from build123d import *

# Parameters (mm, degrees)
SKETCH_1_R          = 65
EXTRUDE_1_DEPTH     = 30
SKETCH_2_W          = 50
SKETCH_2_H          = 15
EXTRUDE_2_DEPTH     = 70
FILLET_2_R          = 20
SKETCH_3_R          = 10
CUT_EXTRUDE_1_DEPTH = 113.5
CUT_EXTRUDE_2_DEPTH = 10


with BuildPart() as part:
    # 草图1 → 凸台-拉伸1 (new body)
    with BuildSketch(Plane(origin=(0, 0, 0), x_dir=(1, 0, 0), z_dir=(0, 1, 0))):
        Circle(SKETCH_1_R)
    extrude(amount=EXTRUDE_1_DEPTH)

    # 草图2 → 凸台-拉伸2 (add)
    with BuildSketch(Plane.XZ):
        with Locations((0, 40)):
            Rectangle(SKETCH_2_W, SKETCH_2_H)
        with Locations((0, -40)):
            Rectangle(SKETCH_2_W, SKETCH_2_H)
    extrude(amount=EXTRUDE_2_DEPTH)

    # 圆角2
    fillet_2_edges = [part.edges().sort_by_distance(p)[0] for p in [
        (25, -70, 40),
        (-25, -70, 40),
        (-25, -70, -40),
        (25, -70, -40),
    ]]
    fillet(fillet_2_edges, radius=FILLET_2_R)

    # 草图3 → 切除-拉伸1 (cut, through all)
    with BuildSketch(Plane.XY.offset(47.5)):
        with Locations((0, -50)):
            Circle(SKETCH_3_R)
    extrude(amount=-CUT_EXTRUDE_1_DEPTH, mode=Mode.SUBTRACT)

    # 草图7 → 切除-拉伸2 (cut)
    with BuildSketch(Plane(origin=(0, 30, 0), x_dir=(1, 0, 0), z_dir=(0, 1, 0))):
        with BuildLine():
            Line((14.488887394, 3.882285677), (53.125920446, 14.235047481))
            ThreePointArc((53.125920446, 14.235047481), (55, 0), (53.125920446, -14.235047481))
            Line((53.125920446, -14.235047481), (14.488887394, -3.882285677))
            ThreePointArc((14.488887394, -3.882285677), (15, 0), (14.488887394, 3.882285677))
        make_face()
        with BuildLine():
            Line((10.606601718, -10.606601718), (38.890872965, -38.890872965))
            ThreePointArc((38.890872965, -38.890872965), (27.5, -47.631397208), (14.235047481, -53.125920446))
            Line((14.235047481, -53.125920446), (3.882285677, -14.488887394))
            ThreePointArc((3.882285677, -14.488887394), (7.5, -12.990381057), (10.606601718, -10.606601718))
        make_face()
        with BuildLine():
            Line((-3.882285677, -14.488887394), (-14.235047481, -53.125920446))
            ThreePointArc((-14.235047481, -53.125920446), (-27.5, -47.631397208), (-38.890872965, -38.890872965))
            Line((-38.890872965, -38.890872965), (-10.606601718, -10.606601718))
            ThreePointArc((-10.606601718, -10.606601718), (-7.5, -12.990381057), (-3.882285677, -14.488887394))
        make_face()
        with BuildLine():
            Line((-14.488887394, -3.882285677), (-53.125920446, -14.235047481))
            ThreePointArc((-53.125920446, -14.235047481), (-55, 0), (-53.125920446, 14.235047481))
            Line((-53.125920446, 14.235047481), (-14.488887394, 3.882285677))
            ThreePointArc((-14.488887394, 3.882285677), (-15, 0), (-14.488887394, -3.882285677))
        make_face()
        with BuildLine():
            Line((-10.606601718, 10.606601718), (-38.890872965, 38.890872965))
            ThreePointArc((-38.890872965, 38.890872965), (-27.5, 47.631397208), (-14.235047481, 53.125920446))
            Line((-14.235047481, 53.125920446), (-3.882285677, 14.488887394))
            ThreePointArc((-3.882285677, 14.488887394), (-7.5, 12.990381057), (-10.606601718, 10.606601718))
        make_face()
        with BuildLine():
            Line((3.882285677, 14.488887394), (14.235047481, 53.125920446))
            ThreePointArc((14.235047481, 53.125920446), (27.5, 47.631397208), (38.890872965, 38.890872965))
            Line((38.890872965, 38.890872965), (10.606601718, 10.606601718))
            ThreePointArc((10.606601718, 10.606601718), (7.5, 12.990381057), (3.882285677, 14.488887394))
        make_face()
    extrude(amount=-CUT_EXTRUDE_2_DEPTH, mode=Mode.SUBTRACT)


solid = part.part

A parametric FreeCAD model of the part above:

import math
import FreeCAD as App
import Part
import Sketcher

V = App.Vector
Q = App.Units.Quantity


def edges_at(feature, points):
    """Names of the edges that pass closest to the given points."""
    edges = feature.Shape.Edges
    near = lambda p: min(range(len(edges)), key=lambda i: edges[i].distToShape(Part.Vertex(*p))[0])
    return sorted({f"Edge{near(p) + 1}" for p in points})


def add_polygon(sketch, points):
    """Adds a closed chain of lines whose ends are joined by coincident constraints."""
    first, n = sketch.GeometryCount, len(points)
    for a, b in zip(points, points[1:] + points[:1]):
        sketch.addGeometry(Part.LineSegment(App.Vector(*a, 0), App.Vector(*b, 0)), False)
    for i in range(n):
        sketch.addConstraint(Sketcher.Constraint("Coincident", first + i, 2, first + (i + 1) % n, 1))

doc = App.newDocument("Part")
body = doc.addObject("PartDesign::Body", "Body")

# Sketch on XZ plane
sketch1 = body.newObject("Sketcher::SketchObject", "Sketch")
sketch1.AttachmentSupport = (doc.getObject("XZ_Plane"), [""])
sketch1.MapMode = "FlatFace"
sketch1.addGeometry(Part.Circle(V(0, 0, 0), V(0, 0, 1), 65), False)
sketch1.addConstraint([
    Sketcher.Constraint("Coincident", 0, 3, -1, 1),
    Sketcher.Constraint("Diameter", 0, 130.0),
])
pad1 = body.newObject("PartDesign::Pad", "Pad")
pad1.Profile = sketch1
pad1.Length = 30
pad1.Reversed = True

# Sketch on XZ plane
sketch2 = body.newObject("Sketcher::SketchObject", "Sketch001")
sketch2.AttachmentSupport = (doc.getObject("XZ_Plane"), [""])
sketch2.MapMode = "FlatFace"
add_polygon(sketch2, [(-25, 48), (-25, 32), (25, 32), (25, 48)])  # lines 0-3
add_polygon(sketch2, [(-25, -32), (-25, -48), (25, -48), (25, -32)])  # lines 4-7
sketch2.addConstraint([
    Sketcher.Constraint("Vertical", 0),
    Sketcher.Constraint("Horizontal", 1),
    Sketcher.Constraint("Vertical", 2),
    Sketcher.Constraint("Horizontal", 3),
    Sketcher.Constraint("Vertical", 4),
    Sketcher.Constraint("Horizontal", 5),
    Sketcher.Constraint("Vertical", 6),
    Sketcher.Constraint("Horizontal", 7),
    Sketcher.Constraint("Symmetric", 2, 2, 4, 2, -1, 1),
    Sketcher.Constraint("Symmetric", 0, 2, 6, 2, -1, 1),
    Sketcher.Constraint("Vertical", 3, 2, 4, 2),
    Sketcher.Constraint("DistanceX", 1, 1, 1, 2, 50.0),
    Sketcher.Constraint("DistanceY", 0, 2, 0, 1, 15.0),
    Sketcher.Constraint("DistanceY", 4, 2, 0, 2, 80.0),
])
pad2 = body.newObject("PartDesign::Pad", "Pad001")
pad2.Profile = sketch2
pad2.Length = 70
doc.recompute()

fillet = body.newObject("PartDesign::Fillet", "Fillet")
fillet.Base = (pad2, edges_at(pad2, [
    (25, -70, 40),
    (-25, -70, 40),
    (-25, -70, -40),
    (25, -70, -40),
]))
fillet.Radius = 20

# Sketch on XY plane
sketch3 = body.newObject("Sketcher::SketchObject", "Sketch002")
sketch3.AttachmentSupport = (doc.getObject("XY_Plane"), [""])
sketch3.MapMode = "FlatFace"
sketch3.AttachmentOffset = App.Placement(V(0, 0, 47.5), App.Rotation())
sketch3.addGeometry(Part.Circle(V(0, -50, 0), V(0, 0, 1), 10), False)
sketch3.addConstraint([
    Sketcher.Constraint("PointOnObject", 0, 3, -2),
    Sketcher.Constraint("Diameter", 0, 20.0),
    Sketcher.Constraint("DistanceY", 0, 3, -1, 1, 50.0),
])
pocket1 = body.newObject("PartDesign::Pocket", "Pocket")
pocket1.Profile = sketch3
pocket1.Type = "ThroughAll"

# Sketch on XZ plane
sketch4 = body.newObject("Sketcher::SketchObject", "Sketch003")
sketch4.AttachmentSupport = (doc.getObject("XZ_Plane"), [""])
sketch4.MapMode = "FlatFace"
sketch4.AttachmentOffset = App.Placement(V(0, 0, -30), App.Rotation())
sketch4.addGeometry([
    Part.LineSegment(V(53, -14, 0), V(14, -4, 0)),  # 0
    Part.ArcOfCircle(Part.Circle(V(0, 0, 0), V(0, 0, 1), 15), math.radians(-15), math.radians(15)),  # 1
    Part.LineSegment(V(14, 4, 0), V(53, 14, 0)),  # 2
    Part.ArcOfCircle(Part.Circle(V(0, 0, 0), V(0, 0, 1), 55), math.radians(-15), math.radians(15)),  # 3
    Part.LineSegment(V(39, 39, 0), V(11, 11, 0)),  # 4
    Part.ArcOfCircle(Part.Circle(V(0, 0, 0), V(0, 0, 1), 15), math.radians(45), math.radians(75)),  # 5
    Part.LineSegment(V(4, 14, 0), V(14, 53, 0)),  # 6
    Part.ArcOfCircle(Part.Circle(V(0, 0, 0), V(0, 0, 1), 55), math.radians(45), math.radians(75)),  # 7
    Part.LineSegment(V(-14, 53, 0), V(-4, 14, 0)),  # 8
    Part.ArcOfCircle(Part.Circle(V(0, 0, 0), V(0, 0, 1), 15), math.radians(105), math.radians(135)),  # 9
    Part.LineSegment(V(-11, 11, 0), V(-39, 39, 0)),  # 10
    Part.ArcOfCircle(Part.Circle(V(0, 0, 0), V(0, 0, 1), 55), math.radians(105), math.radians(135)),  # 11
    Part.LineSegment(V(-53, 14, 0), V(-14, 4, 0)),  # 12
    Part.ArcOfCircle(Part.Circle(V(0, 0, 0), V(0, 0, 1), 15), math.radians(165), math.radians(195)),  # 13
    Part.LineSegment(V(-14, -4, 0), V(-53, -14, 0)),  # 14
    Part.ArcOfCircle(Part.Circle(V(0, 0, 0), V(0, 0, 1), 55), math.radians(165), math.radians(195)),  # 15
    Part.LineSegment(V(-39, -39, 0), V(-11, -11, 0)),  # 16
    Part.ArcOfCircle(Part.Circle(V(0, 0, 0), V(0, 0, 1), 15), math.radians(-135), math.radians(-105)),  # 17
    Part.LineSegment(V(-4, -14, 0), V(-14, -53, 0)),  # 18
    Part.ArcOfCircle(Part.Circle(V(0, 0, 0), V(0, 0, 1), 55), math.radians(-135), math.radians(-105)),  # 19
    Part.LineSegment(V(14, -53, 0), V(4, -14, 0)),  # 20
    Part.ArcOfCircle(Part.Circle(V(0, 0, 0), V(0, 0, 1), 15), math.radians(-75), math.radians(-45)),  # 21
    Part.LineSegment(V(11, -11, 0), V(39, -39, 0)),  # 22
    Part.ArcOfCircle(Part.Circle(V(0, 0, 0), V(0, 0, 1), 55), math.radians(-75), math.radians(-45)),  # 23
], False)
sketch4.addConstraint([
    Sketcher.Constraint("Coincident", 0, 2, 1, 1),
    Sketcher.Constraint("Coincident", 1, 2, 2, 1),
    Sketcher.Constraint("Coincident", 2, 2, 3, 2),
    Sketcher.Constraint("Coincident", 3, 1, 0, 1),
    Sketcher.Constraint("Coincident", 4, 2, 5, 1),
    Sketcher.Constraint("Coincident", 5, 2, 6, 1),
    Sketcher.Constraint("Coincident", 6, 2, 7, 2),
    Sketcher.Constraint("Coincident", 7, 1, 4, 1),
    Sketcher.Constraint("Coincident", 8, 2, 9, 1),
    Sketcher.Constraint("Coincident", 9, 2, 10, 1),
    Sketcher.Constraint("Coincident", 10, 2, 11, 2),
    Sketcher.Constraint("Coincident", 11, 1, 8, 1),
    Sketcher.Constraint("Coincident", 12, 2, 13, 1),
    Sketcher.Constraint("Coincident", 13, 2, 14, 1),
    Sketcher.Constraint("Coincident", 14, 2, 15, 2),
    Sketcher.Constraint("Coincident", 15, 1, 12, 1),
    Sketcher.Constraint("Coincident", 16, 2, 17, 1),
    Sketcher.Constraint("Coincident", 17, 2, 18, 1),
    Sketcher.Constraint("Coincident", 18, 2, 19, 2),
    Sketcher.Constraint("Coincident", 19, 1, 16, 1),
    Sketcher.Constraint("Coincident", 20, 2, 21, 1),
    Sketcher.Constraint("Coincident", 21, 2, 22, 1),
    Sketcher.Constraint("Coincident", 22, 2, 23, 2),
    Sketcher.Constraint("Coincident", 23, 1, 20, 1),
    Sketcher.Constraint("Coincident", 1, 3, -1, 1),
    Sketcher.Constraint("Coincident", 3, 3, -1, 1),
    Sketcher.Constraint("Coincident", 5, 3, -1, 1),
    Sketcher.Constraint("Coincident", 7, 3, -1, 1),
    Sketcher.Constraint("Coincident", 9, 3, -1, 1),
    Sketcher.Constraint("Coincident", 11, 3, -1, 1),
    Sketcher.Constraint("Coincident", 13, 3, -1, 1),
    Sketcher.Constraint("Coincident", 15, 3, -1, 1),
    Sketcher.Constraint("Coincident", 17, 3, -1, 1),
    Sketcher.Constraint("Coincident", 19, 3, -1, 1),
    Sketcher.Constraint("Coincident", 21, 3, -1, 1),
    Sketcher.Constraint("Coincident", 23, 3, -1, 1),
    Sketcher.Constraint("Equal", 1, 5),
    Sketcher.Constraint("Equal", 3, 7),
    Sketcher.Constraint("Equal", 5, 9),
    Sketcher.Constraint("Equal", 7, 11),
    Sketcher.Constraint("Equal", 9, 13),
    Sketcher.Constraint("Equal", 11, 15),
    Sketcher.Constraint("Equal", 13, 17),
    Sketcher.Constraint("Equal", 15, 19),
    Sketcher.Constraint("Equal", 17, 21),
    Sketcher.Constraint("Equal", 19, 23),
    Sketcher.Constraint("Perpendicular", 0, 6),
    Sketcher.Constraint("Perpendicular", 2, 8),
    Sketcher.Constraint("Perpendicular", 4, 10),
    Sketcher.Constraint("Perpendicular", 6, 12),
    Sketcher.Constraint("Perpendicular", 8, 14),
    Sketcher.Constraint("Perpendicular", 10, 16),
    Sketcher.Constraint("Perpendicular", 12, 18),
    Sketcher.Constraint("Perpendicular", 14, 20),
    Sketcher.Constraint("Perpendicular", 16, 22),
    Sketcher.Constraint("Horizontal", 5, 2, 8, 2),
    Sketcher.Constraint("Horizontal", 4, 2, 9, 2),
    Sketcher.Constraint("Horizontal", 7, 1, 10, 2),
    Sketcher.Constraint("Horizontal", 6, 2, 11, 1),
    Sketcher.Constraint("Horizontal", 1, 2, 12, 2),
    Sketcher.Constraint("Horizontal", 0, 2, 13, 2),
    Sketcher.Constraint("Horizontal", 17, 2, 20, 2),
    Sketcher.Constraint("Horizontal", 16, 2, 21, 2),
    Sketcher.Constraint("Vertical", 0, 2, 1, 2),
    Sketcher.Constraint("Vertical", 9, 2, 16, 2),
    Sketcher.Constraint("Vertical", 8, 2, 17, 2),
    Sketcher.Constraint("Radius", 1, 15.0),
    Sketcher.Constraint("Radius", 3, 55.0),
    Sketcher.Constraint("Angle", 0, Q("165 deg")),
    Sketcher.Constraint("DistanceX", -1, 1, 4, 2, 10.606602),
    Sketcher.Constraint("DistanceX", -1, 1, 2, 2, 53.12592),
    Sketcher.Constraint("DistanceY", -1, 1, 6, 2, 53.12592),
])
pocket2 = body.newObject("PartDesign::Pocket", "Pocket001")
pocket2.Profile = sketch4
pocket2.Length = 10
pocket2.Reversed = True

doc.recompute()
